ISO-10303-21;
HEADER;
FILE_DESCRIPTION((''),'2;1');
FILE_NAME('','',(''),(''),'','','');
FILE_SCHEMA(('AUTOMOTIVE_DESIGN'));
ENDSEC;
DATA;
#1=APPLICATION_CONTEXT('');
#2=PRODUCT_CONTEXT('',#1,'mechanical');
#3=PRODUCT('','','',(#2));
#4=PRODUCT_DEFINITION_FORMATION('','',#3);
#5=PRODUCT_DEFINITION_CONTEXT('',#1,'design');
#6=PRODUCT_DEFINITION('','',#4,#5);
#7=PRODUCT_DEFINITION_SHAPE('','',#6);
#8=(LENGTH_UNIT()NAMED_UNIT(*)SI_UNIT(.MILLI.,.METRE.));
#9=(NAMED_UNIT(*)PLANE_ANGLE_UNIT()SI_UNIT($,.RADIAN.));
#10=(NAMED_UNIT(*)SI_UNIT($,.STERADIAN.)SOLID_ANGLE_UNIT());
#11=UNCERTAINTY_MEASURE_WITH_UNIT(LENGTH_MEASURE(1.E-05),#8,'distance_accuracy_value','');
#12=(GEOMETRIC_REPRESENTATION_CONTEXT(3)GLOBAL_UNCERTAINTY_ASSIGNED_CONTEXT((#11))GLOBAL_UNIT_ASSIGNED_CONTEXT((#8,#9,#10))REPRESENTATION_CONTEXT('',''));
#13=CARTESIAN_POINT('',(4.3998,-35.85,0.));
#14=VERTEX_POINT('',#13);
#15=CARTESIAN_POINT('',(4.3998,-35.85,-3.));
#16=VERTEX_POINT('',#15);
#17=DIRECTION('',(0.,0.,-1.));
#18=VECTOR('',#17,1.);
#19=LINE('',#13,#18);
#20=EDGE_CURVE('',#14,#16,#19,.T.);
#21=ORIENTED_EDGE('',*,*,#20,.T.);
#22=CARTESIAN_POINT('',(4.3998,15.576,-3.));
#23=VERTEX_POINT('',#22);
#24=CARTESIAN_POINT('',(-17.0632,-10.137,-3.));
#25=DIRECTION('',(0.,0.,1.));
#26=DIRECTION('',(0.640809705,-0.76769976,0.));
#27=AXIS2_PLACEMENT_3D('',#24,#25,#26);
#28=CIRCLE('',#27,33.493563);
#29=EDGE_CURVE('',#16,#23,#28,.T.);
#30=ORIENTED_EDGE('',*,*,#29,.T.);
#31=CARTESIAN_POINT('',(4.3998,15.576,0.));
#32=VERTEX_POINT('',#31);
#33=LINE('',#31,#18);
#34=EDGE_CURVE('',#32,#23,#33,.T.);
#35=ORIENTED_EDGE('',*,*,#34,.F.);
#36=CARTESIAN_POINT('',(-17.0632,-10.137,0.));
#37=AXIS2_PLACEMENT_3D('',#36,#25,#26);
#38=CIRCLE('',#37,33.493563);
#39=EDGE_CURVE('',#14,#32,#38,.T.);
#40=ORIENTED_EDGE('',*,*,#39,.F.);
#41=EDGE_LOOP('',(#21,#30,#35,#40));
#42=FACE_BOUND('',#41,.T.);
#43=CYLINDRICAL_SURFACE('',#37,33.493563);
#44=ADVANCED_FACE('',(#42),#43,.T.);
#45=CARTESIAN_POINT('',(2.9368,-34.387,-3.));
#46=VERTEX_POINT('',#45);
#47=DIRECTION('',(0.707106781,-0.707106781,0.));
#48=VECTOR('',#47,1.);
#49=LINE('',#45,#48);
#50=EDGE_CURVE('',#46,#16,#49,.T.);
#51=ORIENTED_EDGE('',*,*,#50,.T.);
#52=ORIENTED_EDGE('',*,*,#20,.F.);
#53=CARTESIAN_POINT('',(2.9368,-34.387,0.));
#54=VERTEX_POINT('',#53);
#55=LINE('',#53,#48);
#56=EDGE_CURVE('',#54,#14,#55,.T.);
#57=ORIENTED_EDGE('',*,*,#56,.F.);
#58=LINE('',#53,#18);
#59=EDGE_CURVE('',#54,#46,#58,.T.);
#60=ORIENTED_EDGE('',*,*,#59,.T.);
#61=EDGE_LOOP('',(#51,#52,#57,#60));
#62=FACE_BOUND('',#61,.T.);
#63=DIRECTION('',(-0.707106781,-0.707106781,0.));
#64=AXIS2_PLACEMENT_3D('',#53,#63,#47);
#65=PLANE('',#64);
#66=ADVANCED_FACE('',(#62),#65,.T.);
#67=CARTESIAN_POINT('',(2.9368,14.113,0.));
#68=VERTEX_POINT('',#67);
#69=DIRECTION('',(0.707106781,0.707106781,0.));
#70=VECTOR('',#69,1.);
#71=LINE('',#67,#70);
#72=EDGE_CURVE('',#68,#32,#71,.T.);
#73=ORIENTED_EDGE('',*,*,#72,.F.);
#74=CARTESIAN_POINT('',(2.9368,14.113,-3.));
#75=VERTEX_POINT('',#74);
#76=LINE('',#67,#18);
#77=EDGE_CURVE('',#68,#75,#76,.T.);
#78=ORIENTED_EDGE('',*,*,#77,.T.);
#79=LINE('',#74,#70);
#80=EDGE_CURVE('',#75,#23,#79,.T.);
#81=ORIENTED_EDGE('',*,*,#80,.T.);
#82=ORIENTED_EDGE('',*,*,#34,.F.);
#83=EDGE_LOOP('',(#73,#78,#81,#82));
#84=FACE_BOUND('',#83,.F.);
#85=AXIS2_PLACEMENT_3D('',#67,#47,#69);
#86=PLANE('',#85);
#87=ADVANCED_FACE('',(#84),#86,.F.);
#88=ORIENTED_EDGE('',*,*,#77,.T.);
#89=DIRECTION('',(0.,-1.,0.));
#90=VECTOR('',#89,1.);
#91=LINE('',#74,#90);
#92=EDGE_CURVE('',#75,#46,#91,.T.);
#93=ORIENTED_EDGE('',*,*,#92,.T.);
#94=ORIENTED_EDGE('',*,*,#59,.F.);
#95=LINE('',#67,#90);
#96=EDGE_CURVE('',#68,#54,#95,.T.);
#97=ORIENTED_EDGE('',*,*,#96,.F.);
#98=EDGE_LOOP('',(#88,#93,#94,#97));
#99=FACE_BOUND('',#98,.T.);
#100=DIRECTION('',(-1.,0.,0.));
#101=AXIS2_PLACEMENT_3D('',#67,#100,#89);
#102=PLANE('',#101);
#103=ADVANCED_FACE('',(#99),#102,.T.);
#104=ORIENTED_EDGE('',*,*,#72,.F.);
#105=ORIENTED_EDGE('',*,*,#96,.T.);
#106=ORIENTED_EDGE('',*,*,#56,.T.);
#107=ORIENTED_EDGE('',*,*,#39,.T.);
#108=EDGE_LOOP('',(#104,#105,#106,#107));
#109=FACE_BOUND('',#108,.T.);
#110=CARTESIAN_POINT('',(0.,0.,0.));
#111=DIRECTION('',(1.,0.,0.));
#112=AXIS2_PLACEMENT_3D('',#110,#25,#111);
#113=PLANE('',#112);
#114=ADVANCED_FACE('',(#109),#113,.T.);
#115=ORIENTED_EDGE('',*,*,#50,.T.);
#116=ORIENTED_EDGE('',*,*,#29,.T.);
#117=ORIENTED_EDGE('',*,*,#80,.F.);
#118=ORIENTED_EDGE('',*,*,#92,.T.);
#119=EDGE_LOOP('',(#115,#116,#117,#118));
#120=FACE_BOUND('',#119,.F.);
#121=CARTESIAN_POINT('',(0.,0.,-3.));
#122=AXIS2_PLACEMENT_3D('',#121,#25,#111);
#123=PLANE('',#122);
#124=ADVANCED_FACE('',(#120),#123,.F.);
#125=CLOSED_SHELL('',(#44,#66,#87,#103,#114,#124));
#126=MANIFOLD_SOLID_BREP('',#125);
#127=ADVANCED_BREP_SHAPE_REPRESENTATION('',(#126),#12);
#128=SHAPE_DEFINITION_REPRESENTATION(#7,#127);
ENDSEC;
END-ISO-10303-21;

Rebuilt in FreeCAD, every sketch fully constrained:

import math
import FreeCAD as App
import Part
import Sketcher
from FreeCAD import Vector
Q = App.Units.Quantity

doc = App.newDocument("Part")
body = doc.addObject("PartDesign::Body", "Body")

sketch1 = body.newObject("Sketcher::SketchObject", "Sketch")
sketch1.AttachmentSupport = (doc.getObject("XY_Plane"), [""])
sketch1.MapMode = "FlatFace"
sketch1.addGeometry([
    Part.LineSegment(Vector(4.4, 15.6, 0), Vector(2.9, 14.1, 0)),
    Part.LineSegment(Vector(2.9, 14.1, 0), Vector(2.9, -34.4, 0)),
    Part.LineSegment(Vector(2.9, -34.4, 0), Vector(4.4, -35.9, 0)),
    Part.ArcOfCircle(Part.Circle(Vector(-17.1, -10.1, 0), Vector(0, 0, 1), 33.5), math.radians(-50), math.radians(50)),
], False)
sketch1.addConstraint([
    Sketcher.Constraint("Coincident", 0, 2, 1, 1),
    Sketcher.Constraint("Coincident", 1, 2, 2, 1),
    Sketcher.Constraint("Coincident", 2, 2, 3, 1),
    Sketcher.Constraint("Coincident", 3, 2, 0, 1),
    Sketcher.Constraint("Vertical", 1),
    Sketcher.Constraint("Perpendicular", 0, 2),
    Sketcher.Constraint("Vertical", 2, 2, 3, 2),
    Sketcher.Constraint("Equal", 0, 2),
    Sketcher.Constraint("DistanceY", 1, 2, 1, 1, Q("48.5 mm")),
    Sketcher.Constraint("DistanceX", 3, 3, 0, 2, Q("20 mm")),
    Sketcher.Constraint("Distance", 0, Q("2.069 mm")),
    Sketcher.Constraint("DistanceY", 2, 2, -1, 1, Q("35.85 mm")),
    Sketcher.Constraint("DistanceX", 3, 3, -1, 1, Q("17.0632 mm")),
])
pad1 = body.newObject("PartDesign::Pad", "Pad")
pad1.Profile = sketch1
pad1.Length = 3
pad1.Reversed = True

doc.recompute()
